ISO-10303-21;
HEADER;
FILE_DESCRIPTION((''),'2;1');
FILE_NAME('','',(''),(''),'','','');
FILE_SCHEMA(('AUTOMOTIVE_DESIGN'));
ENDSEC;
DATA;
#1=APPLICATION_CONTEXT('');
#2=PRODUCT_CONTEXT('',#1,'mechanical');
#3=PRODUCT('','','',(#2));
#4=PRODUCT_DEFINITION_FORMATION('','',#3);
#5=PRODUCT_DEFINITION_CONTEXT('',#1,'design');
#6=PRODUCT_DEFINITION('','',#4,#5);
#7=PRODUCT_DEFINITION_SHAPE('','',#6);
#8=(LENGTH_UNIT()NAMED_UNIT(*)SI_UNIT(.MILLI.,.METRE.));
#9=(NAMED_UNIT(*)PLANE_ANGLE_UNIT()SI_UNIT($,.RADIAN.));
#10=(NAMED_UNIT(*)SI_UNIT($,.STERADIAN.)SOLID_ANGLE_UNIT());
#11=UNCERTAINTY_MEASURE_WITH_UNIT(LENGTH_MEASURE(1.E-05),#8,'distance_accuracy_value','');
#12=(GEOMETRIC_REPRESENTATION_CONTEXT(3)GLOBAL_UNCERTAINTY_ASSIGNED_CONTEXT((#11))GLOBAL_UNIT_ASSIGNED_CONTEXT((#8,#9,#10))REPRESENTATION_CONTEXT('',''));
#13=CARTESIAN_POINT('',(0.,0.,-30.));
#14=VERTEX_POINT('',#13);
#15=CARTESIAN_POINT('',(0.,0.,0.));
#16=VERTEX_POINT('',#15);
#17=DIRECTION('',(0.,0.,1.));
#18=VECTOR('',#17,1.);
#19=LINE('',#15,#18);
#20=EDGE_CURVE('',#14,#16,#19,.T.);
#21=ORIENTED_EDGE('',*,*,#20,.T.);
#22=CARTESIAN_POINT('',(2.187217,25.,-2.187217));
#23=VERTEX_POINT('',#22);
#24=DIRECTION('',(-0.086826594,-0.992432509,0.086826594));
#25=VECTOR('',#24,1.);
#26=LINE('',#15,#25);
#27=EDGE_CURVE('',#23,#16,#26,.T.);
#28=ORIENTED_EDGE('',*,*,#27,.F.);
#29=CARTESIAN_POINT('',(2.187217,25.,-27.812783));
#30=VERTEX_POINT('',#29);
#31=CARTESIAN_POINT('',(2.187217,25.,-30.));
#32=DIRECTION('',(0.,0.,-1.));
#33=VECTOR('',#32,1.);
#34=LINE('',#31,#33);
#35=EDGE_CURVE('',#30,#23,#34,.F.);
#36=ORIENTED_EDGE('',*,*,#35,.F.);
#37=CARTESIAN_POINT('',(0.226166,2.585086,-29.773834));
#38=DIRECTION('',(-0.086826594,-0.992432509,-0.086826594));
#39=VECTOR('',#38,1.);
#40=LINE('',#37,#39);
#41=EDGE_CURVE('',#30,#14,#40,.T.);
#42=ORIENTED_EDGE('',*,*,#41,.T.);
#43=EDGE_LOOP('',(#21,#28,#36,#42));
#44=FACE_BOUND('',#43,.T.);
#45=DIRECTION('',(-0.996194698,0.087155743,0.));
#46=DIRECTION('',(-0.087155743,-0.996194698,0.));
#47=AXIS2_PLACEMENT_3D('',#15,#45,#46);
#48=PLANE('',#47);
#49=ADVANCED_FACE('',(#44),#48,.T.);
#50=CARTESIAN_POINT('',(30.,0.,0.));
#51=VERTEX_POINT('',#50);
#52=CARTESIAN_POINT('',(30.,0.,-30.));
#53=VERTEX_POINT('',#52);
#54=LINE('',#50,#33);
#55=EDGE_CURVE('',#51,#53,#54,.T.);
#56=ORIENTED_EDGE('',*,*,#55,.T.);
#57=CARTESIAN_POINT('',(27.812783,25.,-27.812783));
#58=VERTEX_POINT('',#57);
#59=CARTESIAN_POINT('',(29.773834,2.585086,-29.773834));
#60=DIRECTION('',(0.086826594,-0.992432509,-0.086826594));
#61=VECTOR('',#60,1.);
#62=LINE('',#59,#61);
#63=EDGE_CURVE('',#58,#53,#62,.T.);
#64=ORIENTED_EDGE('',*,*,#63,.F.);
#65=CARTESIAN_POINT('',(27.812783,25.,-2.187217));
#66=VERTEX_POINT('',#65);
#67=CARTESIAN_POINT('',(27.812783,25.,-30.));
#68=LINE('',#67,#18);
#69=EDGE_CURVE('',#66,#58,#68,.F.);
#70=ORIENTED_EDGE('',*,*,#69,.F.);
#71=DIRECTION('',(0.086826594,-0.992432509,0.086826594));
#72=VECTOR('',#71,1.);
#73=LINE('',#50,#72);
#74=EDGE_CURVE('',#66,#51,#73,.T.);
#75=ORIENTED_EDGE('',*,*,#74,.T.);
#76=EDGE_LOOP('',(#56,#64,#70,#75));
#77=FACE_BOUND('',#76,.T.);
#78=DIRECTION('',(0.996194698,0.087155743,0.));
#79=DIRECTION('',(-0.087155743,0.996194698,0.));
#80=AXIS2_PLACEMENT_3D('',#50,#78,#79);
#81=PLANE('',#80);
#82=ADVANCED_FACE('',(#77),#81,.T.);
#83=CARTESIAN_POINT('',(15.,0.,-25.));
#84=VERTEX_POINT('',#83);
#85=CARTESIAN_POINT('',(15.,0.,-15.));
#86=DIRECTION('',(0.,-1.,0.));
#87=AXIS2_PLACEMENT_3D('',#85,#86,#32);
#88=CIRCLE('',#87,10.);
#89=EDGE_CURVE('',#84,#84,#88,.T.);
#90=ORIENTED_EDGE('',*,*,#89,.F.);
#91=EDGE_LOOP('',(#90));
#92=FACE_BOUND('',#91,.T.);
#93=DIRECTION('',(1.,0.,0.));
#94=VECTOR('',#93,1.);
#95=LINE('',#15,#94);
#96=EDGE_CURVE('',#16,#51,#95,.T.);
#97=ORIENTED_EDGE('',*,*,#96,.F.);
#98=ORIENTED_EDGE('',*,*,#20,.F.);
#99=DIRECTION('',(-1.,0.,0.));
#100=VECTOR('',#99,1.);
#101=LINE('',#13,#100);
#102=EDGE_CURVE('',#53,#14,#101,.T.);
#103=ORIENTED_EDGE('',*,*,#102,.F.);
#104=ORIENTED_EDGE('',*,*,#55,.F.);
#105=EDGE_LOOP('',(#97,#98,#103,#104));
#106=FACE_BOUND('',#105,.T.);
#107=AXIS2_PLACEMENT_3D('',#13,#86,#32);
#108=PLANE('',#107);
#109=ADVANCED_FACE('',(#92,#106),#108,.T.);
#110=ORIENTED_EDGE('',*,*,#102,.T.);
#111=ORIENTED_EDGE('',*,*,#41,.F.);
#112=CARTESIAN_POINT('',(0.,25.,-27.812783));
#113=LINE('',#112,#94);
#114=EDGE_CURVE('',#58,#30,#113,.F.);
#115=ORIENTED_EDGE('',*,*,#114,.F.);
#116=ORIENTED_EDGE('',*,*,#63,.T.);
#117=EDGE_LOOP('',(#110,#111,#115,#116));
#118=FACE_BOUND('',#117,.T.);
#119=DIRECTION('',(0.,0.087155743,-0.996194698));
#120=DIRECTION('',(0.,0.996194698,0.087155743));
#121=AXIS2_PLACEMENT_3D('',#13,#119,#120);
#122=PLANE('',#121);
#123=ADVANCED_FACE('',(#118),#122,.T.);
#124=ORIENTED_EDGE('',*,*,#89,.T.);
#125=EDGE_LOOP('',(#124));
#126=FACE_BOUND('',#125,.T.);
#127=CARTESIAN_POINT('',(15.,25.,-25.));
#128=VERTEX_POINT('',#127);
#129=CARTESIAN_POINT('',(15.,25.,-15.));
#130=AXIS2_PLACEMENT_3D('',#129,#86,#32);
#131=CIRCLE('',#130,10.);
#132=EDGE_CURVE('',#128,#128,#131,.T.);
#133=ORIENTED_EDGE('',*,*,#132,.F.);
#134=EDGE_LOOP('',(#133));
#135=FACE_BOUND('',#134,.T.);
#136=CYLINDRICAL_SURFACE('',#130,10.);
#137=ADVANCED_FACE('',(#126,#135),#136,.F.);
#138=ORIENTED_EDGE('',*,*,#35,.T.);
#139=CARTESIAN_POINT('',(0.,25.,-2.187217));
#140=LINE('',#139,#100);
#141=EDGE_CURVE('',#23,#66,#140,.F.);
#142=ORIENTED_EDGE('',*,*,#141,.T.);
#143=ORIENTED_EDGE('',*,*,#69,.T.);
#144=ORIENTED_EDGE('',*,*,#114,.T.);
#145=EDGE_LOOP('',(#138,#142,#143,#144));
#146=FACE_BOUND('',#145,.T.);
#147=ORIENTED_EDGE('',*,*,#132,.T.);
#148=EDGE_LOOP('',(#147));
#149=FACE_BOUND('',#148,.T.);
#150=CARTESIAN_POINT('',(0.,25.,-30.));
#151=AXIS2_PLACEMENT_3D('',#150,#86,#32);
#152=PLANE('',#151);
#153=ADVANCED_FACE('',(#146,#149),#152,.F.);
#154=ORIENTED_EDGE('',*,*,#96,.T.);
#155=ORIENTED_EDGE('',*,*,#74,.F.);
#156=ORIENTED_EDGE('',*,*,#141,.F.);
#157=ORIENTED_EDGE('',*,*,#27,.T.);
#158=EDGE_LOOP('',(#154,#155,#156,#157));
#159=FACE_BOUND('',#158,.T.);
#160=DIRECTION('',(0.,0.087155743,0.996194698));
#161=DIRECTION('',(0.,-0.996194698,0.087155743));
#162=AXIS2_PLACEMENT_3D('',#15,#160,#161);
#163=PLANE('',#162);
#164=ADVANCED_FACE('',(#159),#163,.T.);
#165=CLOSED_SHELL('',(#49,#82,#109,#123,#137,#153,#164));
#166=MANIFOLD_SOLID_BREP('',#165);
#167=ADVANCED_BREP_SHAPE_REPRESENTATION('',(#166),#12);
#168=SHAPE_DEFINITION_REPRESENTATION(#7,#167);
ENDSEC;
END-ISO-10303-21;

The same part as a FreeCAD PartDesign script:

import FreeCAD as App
import Part
import Sketcher

V = App.Vector
Q = App.Units.Quantity


def add_polygon(sketch, points):
    """Adds a closed chain of lines whose ends are joined by coincident constraints."""
    first, n = sketch.GeometryCount, len(points)
    for a, b in zip(points, points[1:] + points[:1]):
        sketch.addGeometry(Part.LineSegment(App.Vector(*a, 0), App.Vector(*b, 0)), False)
    for i in range(n):
        sketch.addConstraint(Sketcher.Constraint("Coincident", first + i, 2, first + (i + 1) % n, 1))

doc = App.newDocument("Part")
params = doc.addObject("Spreadsheet::Sheet", "Params")
for row, (alias, value) in enumerate([
    ("sketch1_width", "30 mm"),
    ("pad1_length", "25 mm"),
    ("pad1_taper", "-5 deg"),
    ("sketch2_diameter", "20 mm"),
], start=1):
    params.set(f"A{row}", alias)
    params.set(f"B{row}", "=" + value)
    params.setAlias(f"B{row}", alias)

body = doc.addObject("PartDesign::Body", "Body")

# Sketch on XZ plane
sketch1 = body.newObject("Sketcher::SketchObject", "Sketch")
sketch1.AttachmentSupport = (doc.getObject("XZ_Plane"), [""])
sketch1.MapMode = "FlatFace"
add_polygon(sketch1, [(0, -30), (0, 0), (30, 0), (30, -30)])  # lines 0-3
sketch1.addConstraint(Sketcher.Constraint("Vertical", 0))
sketch1.addConstraint(Sketcher.Constraint("Horizontal", 1))
sketch1.addConstraint(Sketcher.Constraint("Vertical", 2))
sketch1.addConstraint(Sketcher.Constraint("Horizontal", 3))
sketch1.addConstraint(Sketcher.Constraint("Coincident", 0, 2, -1, 1))
sketch1.addConstraint(Sketcher.Constraint("Equal", 3, 0))
sketch1.addConstraint(Sketcher.Constraint("DistanceX", 1, 1, 1, 2, Q("30 mm")))
sketch1.setExpression("Constraints[10]", "Params.sketch1_width")
pad1 = body.newObject("PartDesign::Pad", "Pad")
pad1.Profile = sketch1
pad1.setExpression("Length", "Params.pad1_length")
pad1.Reversed = True
pad1.setExpression("TaperAngle", "Params.pad1_taper")

# Sketch on XZ plane
sketch2 = body.newObject("Sketcher::SketchObject", "Sketch001")
sketch2.AttachmentSupport = (doc.getObject("XZ_Plane"), [""])
sketch2.MapMode = "FlatFace"
sketch2.addGeometry(Part.Circle(V(15, -15, 0), V(0, 0, 1), 10), False)
sketch2.addConstraint(Sketcher.Constraint("Diameter", 0, Q("20 mm")))
sketch2.addConstraint(Sketcher.Constraint("DistanceX", -1, 1, 0, 3, Q("15 mm")))
sketch2.addConstraint(Sketcher.Constraint("DistanceY", 0, 3, -1, 1, Q("15 mm")))
sketch2.setExpression("Constraints[0]", "Params.sketch2_diameter")
pocket1 = body.newObject("PartDesign::Pocket", "Pocket")
pocket1.Profile = sketch2
pocket1.Type = "ThroughAll"

doc.recompute()
